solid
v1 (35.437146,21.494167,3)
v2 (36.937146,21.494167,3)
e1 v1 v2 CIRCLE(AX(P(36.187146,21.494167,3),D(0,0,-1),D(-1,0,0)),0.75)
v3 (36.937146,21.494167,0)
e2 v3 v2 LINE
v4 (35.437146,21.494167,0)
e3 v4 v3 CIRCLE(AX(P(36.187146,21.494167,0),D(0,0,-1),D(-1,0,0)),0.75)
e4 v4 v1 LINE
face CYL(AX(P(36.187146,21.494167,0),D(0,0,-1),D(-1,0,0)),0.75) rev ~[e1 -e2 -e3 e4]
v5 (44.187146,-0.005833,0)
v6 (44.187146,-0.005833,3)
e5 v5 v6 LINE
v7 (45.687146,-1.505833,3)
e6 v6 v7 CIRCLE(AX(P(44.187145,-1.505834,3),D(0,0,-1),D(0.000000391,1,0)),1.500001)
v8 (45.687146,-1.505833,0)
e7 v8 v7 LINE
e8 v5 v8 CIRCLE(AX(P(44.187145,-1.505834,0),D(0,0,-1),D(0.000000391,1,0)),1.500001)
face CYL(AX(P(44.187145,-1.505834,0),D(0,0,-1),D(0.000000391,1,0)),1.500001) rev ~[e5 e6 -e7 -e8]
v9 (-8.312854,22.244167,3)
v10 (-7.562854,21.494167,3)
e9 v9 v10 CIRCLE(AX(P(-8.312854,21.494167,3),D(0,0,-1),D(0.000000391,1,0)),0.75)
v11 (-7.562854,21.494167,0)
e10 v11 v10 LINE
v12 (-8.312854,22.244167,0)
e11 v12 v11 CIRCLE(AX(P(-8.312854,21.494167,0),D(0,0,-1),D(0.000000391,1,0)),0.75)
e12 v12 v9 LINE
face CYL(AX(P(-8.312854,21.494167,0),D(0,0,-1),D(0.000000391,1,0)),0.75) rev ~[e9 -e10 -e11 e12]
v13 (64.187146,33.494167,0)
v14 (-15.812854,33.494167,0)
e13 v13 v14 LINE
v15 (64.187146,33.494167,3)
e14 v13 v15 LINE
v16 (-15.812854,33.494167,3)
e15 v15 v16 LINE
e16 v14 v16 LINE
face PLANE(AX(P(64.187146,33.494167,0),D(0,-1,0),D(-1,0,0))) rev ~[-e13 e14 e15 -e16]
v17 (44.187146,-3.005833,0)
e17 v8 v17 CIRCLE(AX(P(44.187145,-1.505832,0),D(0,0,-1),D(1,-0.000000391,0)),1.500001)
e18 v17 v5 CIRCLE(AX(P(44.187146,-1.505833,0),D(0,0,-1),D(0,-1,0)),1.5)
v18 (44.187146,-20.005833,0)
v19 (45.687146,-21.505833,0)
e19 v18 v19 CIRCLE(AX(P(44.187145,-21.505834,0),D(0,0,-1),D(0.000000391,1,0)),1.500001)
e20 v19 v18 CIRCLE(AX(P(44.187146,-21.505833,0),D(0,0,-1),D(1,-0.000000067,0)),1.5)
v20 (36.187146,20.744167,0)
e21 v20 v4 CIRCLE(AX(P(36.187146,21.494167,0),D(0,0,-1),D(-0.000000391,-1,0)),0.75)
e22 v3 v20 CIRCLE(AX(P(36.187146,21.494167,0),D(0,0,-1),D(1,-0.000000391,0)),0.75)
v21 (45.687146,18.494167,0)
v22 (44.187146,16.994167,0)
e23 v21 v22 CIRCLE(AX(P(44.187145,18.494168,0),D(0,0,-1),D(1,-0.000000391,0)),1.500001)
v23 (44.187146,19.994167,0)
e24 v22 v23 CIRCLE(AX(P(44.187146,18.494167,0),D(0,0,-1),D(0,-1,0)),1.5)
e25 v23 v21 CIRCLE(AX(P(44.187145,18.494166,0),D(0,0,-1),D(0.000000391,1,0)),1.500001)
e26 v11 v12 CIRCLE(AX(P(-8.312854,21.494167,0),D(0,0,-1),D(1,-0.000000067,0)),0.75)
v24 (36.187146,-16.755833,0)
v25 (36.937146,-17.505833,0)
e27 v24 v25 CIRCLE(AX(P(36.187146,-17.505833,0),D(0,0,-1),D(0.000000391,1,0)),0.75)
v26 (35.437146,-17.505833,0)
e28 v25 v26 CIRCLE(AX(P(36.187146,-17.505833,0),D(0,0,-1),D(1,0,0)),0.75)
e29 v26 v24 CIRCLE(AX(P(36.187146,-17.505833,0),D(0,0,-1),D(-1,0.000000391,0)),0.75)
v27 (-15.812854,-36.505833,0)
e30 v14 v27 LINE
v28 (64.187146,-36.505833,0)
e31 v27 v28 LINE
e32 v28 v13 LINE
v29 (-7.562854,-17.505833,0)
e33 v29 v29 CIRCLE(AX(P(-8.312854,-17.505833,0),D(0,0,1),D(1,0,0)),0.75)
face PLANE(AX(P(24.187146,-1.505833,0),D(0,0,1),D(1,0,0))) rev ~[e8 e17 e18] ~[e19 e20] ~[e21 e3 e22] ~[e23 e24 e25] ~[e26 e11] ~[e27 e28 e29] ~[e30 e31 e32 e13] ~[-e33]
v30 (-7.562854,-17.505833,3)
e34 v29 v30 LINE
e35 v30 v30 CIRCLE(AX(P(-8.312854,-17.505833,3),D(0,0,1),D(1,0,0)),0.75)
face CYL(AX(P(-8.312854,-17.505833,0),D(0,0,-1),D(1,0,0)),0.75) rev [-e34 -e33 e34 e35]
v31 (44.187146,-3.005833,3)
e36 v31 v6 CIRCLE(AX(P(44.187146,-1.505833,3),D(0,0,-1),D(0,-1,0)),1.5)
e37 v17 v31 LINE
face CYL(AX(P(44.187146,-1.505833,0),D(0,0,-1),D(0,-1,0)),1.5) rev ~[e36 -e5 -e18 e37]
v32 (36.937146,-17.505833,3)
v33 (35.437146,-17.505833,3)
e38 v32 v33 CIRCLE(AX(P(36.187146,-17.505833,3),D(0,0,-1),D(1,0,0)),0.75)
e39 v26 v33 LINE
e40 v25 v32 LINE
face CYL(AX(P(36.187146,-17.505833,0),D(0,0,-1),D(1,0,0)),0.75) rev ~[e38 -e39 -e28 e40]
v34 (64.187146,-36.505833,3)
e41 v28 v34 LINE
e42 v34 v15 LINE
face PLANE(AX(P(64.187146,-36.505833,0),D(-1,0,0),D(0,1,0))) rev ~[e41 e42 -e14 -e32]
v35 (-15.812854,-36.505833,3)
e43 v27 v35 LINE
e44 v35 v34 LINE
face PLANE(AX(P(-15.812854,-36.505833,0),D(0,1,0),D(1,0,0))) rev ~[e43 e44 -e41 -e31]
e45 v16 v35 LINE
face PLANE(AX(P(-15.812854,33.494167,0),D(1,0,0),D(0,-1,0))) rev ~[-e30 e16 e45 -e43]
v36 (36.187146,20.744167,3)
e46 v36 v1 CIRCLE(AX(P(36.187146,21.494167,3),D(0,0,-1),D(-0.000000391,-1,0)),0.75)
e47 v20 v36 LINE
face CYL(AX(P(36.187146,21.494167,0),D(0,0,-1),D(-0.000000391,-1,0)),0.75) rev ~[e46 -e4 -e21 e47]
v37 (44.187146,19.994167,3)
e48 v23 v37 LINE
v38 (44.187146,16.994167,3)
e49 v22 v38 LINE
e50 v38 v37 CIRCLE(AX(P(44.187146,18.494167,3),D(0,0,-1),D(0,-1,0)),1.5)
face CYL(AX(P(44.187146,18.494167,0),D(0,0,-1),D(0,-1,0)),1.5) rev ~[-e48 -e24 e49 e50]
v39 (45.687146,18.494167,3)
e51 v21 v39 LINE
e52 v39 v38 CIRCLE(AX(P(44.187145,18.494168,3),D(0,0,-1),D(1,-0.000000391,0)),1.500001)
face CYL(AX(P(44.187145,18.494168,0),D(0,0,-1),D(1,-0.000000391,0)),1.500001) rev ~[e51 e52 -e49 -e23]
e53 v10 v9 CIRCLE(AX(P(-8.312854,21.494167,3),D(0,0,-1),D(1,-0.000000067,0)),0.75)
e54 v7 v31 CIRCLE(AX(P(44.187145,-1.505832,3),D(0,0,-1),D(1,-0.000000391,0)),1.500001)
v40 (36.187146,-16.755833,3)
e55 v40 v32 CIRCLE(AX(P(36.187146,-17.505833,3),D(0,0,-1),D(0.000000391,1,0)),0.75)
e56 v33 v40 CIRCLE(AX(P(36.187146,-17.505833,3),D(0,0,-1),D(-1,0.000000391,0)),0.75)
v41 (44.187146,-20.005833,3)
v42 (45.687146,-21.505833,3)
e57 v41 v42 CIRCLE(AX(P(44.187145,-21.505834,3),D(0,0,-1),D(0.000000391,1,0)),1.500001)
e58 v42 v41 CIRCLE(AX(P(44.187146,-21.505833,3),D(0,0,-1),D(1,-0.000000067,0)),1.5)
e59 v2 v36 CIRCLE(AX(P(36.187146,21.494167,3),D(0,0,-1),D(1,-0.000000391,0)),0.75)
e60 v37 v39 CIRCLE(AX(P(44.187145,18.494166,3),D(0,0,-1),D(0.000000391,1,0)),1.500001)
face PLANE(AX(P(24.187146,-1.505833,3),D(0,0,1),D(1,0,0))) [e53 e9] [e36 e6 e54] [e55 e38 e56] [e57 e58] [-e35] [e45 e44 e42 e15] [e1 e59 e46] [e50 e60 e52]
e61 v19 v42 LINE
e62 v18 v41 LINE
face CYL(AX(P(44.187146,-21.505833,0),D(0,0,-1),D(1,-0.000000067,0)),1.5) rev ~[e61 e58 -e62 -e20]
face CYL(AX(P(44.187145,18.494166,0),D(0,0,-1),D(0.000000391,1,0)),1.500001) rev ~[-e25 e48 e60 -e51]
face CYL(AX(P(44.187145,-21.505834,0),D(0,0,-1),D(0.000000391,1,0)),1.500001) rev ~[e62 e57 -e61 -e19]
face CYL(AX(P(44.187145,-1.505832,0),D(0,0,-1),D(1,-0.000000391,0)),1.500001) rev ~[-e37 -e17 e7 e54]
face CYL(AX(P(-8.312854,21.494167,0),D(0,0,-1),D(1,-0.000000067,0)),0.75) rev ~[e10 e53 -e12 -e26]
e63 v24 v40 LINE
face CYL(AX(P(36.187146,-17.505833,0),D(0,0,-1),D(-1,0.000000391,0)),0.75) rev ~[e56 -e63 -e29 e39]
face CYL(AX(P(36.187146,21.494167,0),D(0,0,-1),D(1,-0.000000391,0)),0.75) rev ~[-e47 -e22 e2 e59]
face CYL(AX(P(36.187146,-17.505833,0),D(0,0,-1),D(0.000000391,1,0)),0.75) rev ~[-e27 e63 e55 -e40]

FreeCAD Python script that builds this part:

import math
import FreeCAD as App
import Part
import Sketcher

doc = App.newDocument("Part")
body = doc.addObject("PartDesign::Body", "Body")

sketch1 = body.newObject("Sketcher::SketchObject", "Sketch")
sketch1.AttachmentSupport = (doc.getObject("XY_Plane"), [""])
sketch1.MapMode = "FlatFace"
sketch1.addGeometry(Part.LineSegment(App.Vector(-15.812854, 33.494167, 0), App.Vector(-15.812854, -36.505833, 0)), False)
sketch1.addGeometry(Part.LineSegment(App.Vector(-15.812854, -36.505833, 0), App.Vector(64.187146, -36.505833, 0)), False)
sketch1.addGeometry(Part.LineSegment(App.Vector(64.187146, -36.505833, 0), App.Vector(64.187146, 33.494167, 0)), False)
sketch1.addGeometry(Part.LineSegment(App.Vector(64.187146, 33.494167, 0), App.Vector(-15.812854, 33.494167, 0)), False)
sketch1.addGeometry(Part.Circle(App.Vector(-8.312854, -17.505833, 0), App.Vector(0, 0, 1), 0.75), False)
sketch1.addGeometry(Part.ArcOfCircle(Part.Circle(App.Vector(36.187146, -17.505833, 0), App.Vector(0, 0, 1), 0.75), math.radians(180), math.radians(360)), False)
sketch1.addGeometry(Part.ArcOfCircle(Part.Circle(App.Vector(36.187146, -17.505833, 0), App.Vector(0, 0, 1), 0.75), math.radians(90.000022), math.radians(179.999978)), False)
sketch1.addGeometry(Part.ArcOfCircle(Part.Circle(App.Vector(36.187146, -17.505833, 0), App.Vector(0, 0, 1), 0.75), math.radians(0.000022), math.radians(89.999978)), False)
sketch1.addGeometry(Part.ArcOfCircle(Part.Circle(App.Vector(44.187145, -21.505834, 0), App.Vector(0, 0, 1), 1.500001), math.radians(0.000022), math.radians(89.999978)), False)
sketch1.addGeometry(Part.ArcOfCircle(Part.Circle(App.Vector(44.187146, -21.505833, 0), App.Vector(0, 0, 1), 1.5), math.radians(90.000004), math.radians(359.999996)), False)
sketch1.addGeometry(Part.ArcOfCircle(Part.Circle(App.Vector(44.187145, -1.505832, 0), App.Vector(0, 0, 1), 1.500001), math.radians(-89.999978), math.radians(-0.000022)), False)
sketch1.addGeometry(Part.ArcOfCircle(Part.Circle(App.Vector(44.187146, -1.505833, 0), App.Vector(0, 0, 1), 1.5), math.radians(90), math.radians(270)), False)
sketch1.addGeometry(Part.ArcOfCircle(Part.Circle(App.Vector(44.187145, -1.505834, 0), App.Vector(0, 0, 1), 1.500001), math.radians(0.000022), math.radians(89.999978)), False)
sketch1.addGeometry(Part.ArcOfCircle(Part.Circle(App.Vector(-8.312854, 21.494167, 0), App.Vector(0, 0, 1), 0.75), math.radians(0.000022), math.radians(89.999978)), False)
sketch1.addGeometry(Part.ArcOfCircle(Part.Circle(App.Vector(-8.312854, 21.494167, 0), App.Vector(0, 0, 1), 0.75), math.radians(90.000004), math.radians(359.999996)), False)
sketch1.addGeometry(Part.ArcOfCircle(Part.Circle(App.Vector(36.187146, 21.494167, 0), App.Vector(0, 0, 1), 0.75), math.radians(-89.999978), math.radians(-0.000022)), False)
sketch1.addGeometry(Part.ArcOfCircle(Part.Circle(App.Vector(36.187146, 21.494167, 0), App.Vector(0, 0, 1), 0.75), math.radians(-179.999978), math.radians(-90.000022)), False)
sketch1.addGeometry(Part.ArcOfCircle(Part.Circle(App.Vector(36.187146, 21.494167, 0), App.Vector(0, 0, 1), 0.75), math.radians(0), math.radians(180)), False)
sketch1.addGeometry(Part.ArcOfCircle(Part.Circle(App.Vector(44.187145, 18.494168, 0), App.Vector(0, 0, 1), 1.500001), math.radians(-89.999978), math.radians(-0.000022)), False)
sketch1.addGeometry(Part.ArcOfCircle(Part.Circle(App.Vector(44.187146, 18.494167, 0), App.Vector(0, 0, 1), 1.5), math.radians(90), math.radians(270)), False)
sketch1.addGeometry(Part.ArcOfCircle(Part.Circle(App.Vector(44.187145, 18.494166, 0), App.Vector(0, 0, 1), 1.500001), math.radians(0.000022), math.radians(89.999978)), False)
sketch1.addConstraint(Sketcher.Constraint("Coincident", 0, 2, 1, 1))
sketch1.addConstraint(Sketcher.Constraint("Coincident", 1, 2, 2, 1))
sketch1.addConstraint(Sketcher.Constraint("Coincident", 2, 2, 3, 1))
sketch1.addConstraint(Sketcher.Constraint("Coincident", 3, 2, 0, 1))
sketch1.addConstraint(Sketcher.Constraint("Tangent", 5, 1, 6, 2))
sketch1.addConstraint(Sketcher.Constraint("Tangent", 6, 1, 7, 2))
sketch1.addConstraint(Sketcher.Constraint("Tangent", 7, 1, 5, 2))
sketch1.addConstraint(Sketcher.Constraint("Tangent", 8, 1, 9, 2))
sketch1.addConstraint(Sketcher.Constraint("Coincident", 9, 1, 8, 2))
sketch1.addConstraint(Sketcher.Constraint("Tangent", 10, 1, 11, 2))
sketch1.addConstraint(Sketcher.Constraint("Tangent", 11, 1, 12, 2))
sketch1.addConstraint(Sketcher.Constraint("Tangent", 12, 1, 10, 2))
sketch1.addConstraint(Sketcher.Constraint("Tangent", 13, 1, 14, 2))
sketch1.addConstraint(Sketcher.Constraint("Coincident", 14, 1, 13, 2))
sketch1.addConstraint(Sketcher.Constraint("Tangent", 15, 1, 16, 2))
sketch1.addConstraint(Sketcher.Constraint("Tangent", 16, 1, 17, 2))
sketch1.addConstraint(Sketcher.Constraint("Tangent", 17, 1, 15, 2))
sketch1.addConstraint(Sketcher.Constraint("Tangent", 18, 1, 19, 2))
sketch1.addConstraint(Sketcher.Constraint("Tangent", 19, 1, 20, 2))
sketch1.addConstraint(Sketcher.Constraint("Tangent", 20, 1, 18, 2))
sketch1.addConstraint(Sketcher.Constraint("Vertical", 0))
sketch1.addConstraint(Sketcher.Constraint("Horizontal", 1))
sketch1.addConstraint(Sketcher.Constraint("Vertical", 2))
sketch1.addConstraint(Sketcher.Constraint("Horizontal", 3))
sketch1.addConstraint(Sketcher.Constraint("Equal", 4, 5))
sketch1.addConstraint(Sketcher.Constraint("Equal", 9, 10))
sketch1.addConstraint(Sketcher.Constraint("Equal", 7, 13))
sketch1.addConstraint(Sketcher.Constraint("Equal", 14, 15))
sketch1.addConstraint(Sketcher.Constraint("Equal", 12, 18))
sketch1.addConstraint(Sketcher.Constraint("Horizontal", 4, 3, 5, 3))
sketch1.addConstraint(Sketcher.Constraint("Horizontal", 14, 3, 15, 3))
sketch1.addConstraint(Sketcher.Constraint("Horizontal", 7, 3, 5, 1))
sketch1.addConstraint(Sketcher.Constraint("Horizontal", 5, 1, 7, 1))
sketch1.addConstraint(Sketcher.Constraint("Horizontal", 9, 3, 8, 1))
sketch1.addConstraint(Sketcher.Constraint("Horizontal", 11, 3, 12, 1))
sketch1.addConstraint(Sketcher.Constraint("Horizontal", 17, 3, 13, 1))
sketch1.addConstraint(Sketcher.Constraint("Horizontal", 13, 1, 16, 1))
sketch1.addConstraint(Sketcher.Constraint("Horizontal", 16, 1, 17, 1))
sketch1.addConstraint(Sketcher.Constraint("Horizontal", 19, 3, 20, 1))
sketch1.addConstraint(Sketcher.Constraint("Vertical", 9, 3, 10, 3))
sketch1.addConstraint(Sketcher.Constraint("Vertical", 4, 3, 13, 3))
sketch1.addConstraint(Sketcher.Constraint("Vertical", 7, 3, 15, 3))
sketch1.addConstraint(Sketcher.Constraint("Vertical", 12, 3, 18, 3))
sketch1.addConstraint(Sketcher.Constraint("Vertical", 17, 3, 6, 1))
sketch1.addConstraint(Sketcher.Constraint("Vertical", 20, 3, 9, 1))
sketch1.addConstraint(Sketcher.Constraint("Vertical", 9, 1, 10, 1))
sketch1.addConstraint(Sketcher.Constraint("Vertical", 10, 1, 11, 1))
sketch1.addConstraint(Sketcher.Constraint("Vertical", 13, 3, 14, 1))
sketch1.addConstraint(Sketcher.Constraint("Vertical", 6, 1, 15, 1))
sketch1.addConstraint(Sketcher.Constraint("Vertical", 11, 1, 18, 1))
sketch1.addConstraint(Sketcher.Constraint("Vertical", 18, 1, 19, 1))
sketch1.addConstraint(Sketcher.Constraint("Diameter", 4, 1.5))
sketch1.addConstraint(Sketcher.Constraint("Radius", 8, 1.500001))
sketch1.addConstraint(Sketcher.Constraint("DistanceX", 1, 1, 1, 2, 80.0))
sketch1.addConstraint(Sketcher.Constraint("DistanceY", 0, 2, 0, 1, 70.0))
sketch1.addConstraint(Sketcher.Constraint("DistanceX", 6, 3, 8, 3, 7.999999))
sketch1.addConstraint(Sketcher.Constraint("DistanceY", 8, 3, 6, 3, 4.0))
sketch1.addConstraint(Sketcher.Constraint("DistanceY", 5, 3, 10, 3, 16.000001))
sketch1.addConstraint(Sketcher.Constraint("DistanceY", 4, 3, 13, 3, 39.0))
sketch1.addConstraint(Sketcher.Constraint("DistanceY", 18, 3, 16, 3, 3.0))
sketch1.addConstraint(Sketcher.Constraint("DistanceY", 0, 2, 4, 3, 19.0))
sketch1.addConstraint(Sketcher.Constraint("DistanceX", 0, 2, 7, 3, 52.0))
sketch1.addConstraint(Sketcher.Constraint("DistanceX", 4, 3, 5, 3, 44.5))
sketch1.addConstraint(Sketcher.Constraint("DistanceX", 4, 3, -1, 1, 8.312854))
sketch1.addConstraint(Sketcher.Constraint("DistanceY", 4, 3, -1, 1, 17.505833))
pad1 = body.newObject("PartDesign::Pad", "Pad")
pad1.Profile = sketch1
pad1.Length = 3

doc.recompute()
